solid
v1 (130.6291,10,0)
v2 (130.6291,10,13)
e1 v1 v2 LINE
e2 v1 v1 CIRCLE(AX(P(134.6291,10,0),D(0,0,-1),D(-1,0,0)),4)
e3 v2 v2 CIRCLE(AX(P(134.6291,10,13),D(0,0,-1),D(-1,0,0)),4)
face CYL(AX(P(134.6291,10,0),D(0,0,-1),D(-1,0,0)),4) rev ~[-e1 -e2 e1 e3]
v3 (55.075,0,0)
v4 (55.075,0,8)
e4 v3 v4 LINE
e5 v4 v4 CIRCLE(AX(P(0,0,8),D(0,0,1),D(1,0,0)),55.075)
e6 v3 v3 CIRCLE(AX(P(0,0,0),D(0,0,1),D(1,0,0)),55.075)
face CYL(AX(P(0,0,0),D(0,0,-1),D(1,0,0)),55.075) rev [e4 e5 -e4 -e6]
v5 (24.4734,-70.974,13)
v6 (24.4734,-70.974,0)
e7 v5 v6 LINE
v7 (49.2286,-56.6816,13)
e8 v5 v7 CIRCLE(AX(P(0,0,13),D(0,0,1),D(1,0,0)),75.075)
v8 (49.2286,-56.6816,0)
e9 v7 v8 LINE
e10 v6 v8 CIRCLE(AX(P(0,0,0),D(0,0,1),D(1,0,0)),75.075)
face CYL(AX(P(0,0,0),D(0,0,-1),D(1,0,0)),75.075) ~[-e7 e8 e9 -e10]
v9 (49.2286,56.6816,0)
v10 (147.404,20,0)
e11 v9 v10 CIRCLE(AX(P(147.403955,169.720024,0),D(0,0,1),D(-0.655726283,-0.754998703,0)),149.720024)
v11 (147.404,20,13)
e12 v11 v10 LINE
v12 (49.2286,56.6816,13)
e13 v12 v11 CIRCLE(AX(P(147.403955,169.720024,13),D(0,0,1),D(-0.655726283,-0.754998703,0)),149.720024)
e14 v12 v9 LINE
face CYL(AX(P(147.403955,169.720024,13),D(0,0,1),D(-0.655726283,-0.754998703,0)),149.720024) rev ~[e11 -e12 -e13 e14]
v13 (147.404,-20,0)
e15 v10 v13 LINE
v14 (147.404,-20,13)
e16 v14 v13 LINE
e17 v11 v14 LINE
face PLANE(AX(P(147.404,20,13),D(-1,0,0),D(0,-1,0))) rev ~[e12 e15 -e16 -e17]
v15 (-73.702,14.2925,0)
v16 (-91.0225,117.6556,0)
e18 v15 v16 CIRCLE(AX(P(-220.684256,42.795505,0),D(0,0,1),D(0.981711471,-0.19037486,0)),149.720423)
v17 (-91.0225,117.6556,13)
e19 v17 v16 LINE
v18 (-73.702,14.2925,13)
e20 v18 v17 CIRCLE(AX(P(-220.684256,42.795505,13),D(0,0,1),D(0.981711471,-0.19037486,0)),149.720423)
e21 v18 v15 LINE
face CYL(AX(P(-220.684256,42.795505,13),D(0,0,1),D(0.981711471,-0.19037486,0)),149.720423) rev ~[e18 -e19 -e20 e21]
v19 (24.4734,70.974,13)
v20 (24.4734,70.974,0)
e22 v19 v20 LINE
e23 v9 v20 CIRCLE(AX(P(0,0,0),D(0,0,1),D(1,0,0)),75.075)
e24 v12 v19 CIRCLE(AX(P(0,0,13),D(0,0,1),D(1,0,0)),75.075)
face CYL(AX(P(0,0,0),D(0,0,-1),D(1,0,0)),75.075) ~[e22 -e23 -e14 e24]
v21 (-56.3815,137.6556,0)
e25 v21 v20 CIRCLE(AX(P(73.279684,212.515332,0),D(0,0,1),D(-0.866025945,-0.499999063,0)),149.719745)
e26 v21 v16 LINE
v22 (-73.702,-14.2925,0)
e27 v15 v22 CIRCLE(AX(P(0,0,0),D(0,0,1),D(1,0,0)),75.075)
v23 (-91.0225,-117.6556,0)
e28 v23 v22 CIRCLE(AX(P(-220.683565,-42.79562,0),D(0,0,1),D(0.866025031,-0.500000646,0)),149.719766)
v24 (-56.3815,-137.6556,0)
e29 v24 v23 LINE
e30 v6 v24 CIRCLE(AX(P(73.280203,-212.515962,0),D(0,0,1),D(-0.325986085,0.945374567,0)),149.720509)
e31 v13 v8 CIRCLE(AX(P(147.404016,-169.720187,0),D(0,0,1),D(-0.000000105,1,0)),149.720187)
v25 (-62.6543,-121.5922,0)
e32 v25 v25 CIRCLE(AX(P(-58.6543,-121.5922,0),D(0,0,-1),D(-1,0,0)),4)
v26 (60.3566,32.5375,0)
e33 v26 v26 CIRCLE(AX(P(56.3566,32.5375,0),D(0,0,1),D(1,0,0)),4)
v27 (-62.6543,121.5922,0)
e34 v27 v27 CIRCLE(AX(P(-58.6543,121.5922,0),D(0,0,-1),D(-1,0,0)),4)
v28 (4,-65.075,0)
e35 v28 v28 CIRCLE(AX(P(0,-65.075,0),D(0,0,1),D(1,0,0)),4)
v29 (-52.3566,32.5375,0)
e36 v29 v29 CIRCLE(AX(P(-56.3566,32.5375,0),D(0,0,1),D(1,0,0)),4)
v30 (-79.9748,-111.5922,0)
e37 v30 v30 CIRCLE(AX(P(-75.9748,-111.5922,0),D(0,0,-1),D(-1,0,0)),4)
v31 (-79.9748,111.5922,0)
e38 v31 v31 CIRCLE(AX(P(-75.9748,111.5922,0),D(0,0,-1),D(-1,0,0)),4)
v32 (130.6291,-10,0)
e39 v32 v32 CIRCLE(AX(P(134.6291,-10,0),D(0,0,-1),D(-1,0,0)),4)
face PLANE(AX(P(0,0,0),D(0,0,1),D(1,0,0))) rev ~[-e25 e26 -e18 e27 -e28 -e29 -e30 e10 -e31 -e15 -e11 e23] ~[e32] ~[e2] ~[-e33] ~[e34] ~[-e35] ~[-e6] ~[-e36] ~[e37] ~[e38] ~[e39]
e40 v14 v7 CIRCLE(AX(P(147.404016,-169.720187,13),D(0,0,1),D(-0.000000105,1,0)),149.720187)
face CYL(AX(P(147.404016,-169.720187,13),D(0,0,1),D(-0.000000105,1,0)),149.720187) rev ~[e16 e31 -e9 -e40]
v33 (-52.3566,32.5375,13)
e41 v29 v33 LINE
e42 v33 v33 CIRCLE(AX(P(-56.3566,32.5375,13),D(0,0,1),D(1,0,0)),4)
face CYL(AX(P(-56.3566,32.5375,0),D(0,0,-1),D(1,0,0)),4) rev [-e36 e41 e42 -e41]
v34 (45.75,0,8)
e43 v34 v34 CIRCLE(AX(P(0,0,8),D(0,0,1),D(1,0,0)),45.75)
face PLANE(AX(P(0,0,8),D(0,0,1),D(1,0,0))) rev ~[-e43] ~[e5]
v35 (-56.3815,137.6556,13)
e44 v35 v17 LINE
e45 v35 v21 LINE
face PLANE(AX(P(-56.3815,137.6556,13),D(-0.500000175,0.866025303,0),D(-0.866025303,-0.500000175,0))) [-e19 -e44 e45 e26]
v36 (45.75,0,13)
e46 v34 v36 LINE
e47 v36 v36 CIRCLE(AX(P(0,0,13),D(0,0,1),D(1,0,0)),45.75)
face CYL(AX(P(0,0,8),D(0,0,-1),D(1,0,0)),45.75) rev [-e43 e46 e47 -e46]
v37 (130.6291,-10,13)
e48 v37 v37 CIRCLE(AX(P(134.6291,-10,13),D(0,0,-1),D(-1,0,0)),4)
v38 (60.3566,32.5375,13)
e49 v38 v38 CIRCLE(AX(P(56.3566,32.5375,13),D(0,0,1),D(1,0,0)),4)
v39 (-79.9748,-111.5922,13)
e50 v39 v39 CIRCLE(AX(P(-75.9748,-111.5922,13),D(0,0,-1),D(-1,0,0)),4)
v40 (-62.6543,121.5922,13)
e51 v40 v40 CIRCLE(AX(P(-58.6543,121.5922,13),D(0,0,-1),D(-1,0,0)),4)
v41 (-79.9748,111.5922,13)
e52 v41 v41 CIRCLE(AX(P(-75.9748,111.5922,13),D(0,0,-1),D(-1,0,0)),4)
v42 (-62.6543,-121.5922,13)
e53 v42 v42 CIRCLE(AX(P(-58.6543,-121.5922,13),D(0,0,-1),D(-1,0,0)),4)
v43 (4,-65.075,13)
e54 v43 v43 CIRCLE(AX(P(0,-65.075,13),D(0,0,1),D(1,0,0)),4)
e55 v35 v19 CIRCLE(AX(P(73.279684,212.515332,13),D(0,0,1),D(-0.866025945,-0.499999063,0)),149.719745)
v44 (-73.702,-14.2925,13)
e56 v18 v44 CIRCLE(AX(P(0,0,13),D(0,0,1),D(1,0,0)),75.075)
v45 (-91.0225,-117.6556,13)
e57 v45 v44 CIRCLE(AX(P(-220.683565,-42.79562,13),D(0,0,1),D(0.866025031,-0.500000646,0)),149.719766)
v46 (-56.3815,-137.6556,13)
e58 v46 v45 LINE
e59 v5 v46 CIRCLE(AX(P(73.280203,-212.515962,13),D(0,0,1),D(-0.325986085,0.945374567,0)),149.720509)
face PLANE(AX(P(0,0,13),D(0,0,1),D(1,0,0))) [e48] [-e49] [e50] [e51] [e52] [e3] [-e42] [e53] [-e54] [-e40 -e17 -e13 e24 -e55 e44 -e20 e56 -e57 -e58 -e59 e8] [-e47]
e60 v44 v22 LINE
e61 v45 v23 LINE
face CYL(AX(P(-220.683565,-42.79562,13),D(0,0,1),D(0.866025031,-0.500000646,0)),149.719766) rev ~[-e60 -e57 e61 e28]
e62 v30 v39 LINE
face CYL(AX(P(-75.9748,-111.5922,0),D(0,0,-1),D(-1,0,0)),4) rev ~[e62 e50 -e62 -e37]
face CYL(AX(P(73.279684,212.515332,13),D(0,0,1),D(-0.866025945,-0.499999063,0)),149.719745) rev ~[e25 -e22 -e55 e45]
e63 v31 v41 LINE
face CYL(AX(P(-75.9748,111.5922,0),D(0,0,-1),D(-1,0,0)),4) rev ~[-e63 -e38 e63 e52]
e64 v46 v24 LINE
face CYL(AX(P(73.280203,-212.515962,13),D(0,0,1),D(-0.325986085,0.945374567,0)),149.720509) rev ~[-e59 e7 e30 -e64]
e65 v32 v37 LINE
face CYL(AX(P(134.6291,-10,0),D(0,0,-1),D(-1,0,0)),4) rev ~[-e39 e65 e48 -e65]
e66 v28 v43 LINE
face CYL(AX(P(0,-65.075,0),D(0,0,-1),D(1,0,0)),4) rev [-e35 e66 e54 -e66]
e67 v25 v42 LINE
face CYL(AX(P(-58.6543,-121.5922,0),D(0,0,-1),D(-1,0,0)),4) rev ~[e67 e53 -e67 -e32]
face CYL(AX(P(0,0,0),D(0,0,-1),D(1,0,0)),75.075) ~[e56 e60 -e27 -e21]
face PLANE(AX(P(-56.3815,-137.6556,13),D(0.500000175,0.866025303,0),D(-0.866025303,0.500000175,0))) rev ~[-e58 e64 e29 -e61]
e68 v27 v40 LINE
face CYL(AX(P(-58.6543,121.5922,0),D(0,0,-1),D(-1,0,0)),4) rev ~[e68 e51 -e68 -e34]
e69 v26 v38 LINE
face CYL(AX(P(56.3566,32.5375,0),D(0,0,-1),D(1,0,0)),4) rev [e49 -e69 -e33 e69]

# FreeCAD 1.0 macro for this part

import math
import FreeCAD as App
import Part
import Sketcher
Q = App.Units.Quantity

doc = App.newDocument("Part")
body = doc.addObject("PartDesign::Body", "Body")

sketch1 = body.newObject("Sketcher::SketchObject", "Sketch")
sketch1.AttachmentSupport = (doc.getObject("XY_Plane"), [""])
sketch1.MapMode = "FlatFace"
sketch1.addGeometry([
    Part.Circle(App.Vector(0, 0, 0), App.Vector(0, 0, 1), 75.1),
    Part.Circle(App.Vector(0, -65.1, 0), App.Vector(0, 0, 1), 4),
    Part.Circle(App.Vector(-56.4, 32.5, 0), App.Vector(0, 0, 1), 4),
    Part.Circle(App.Vector(0, 0, 0), App.Vector(0, 0, 1), 55.1),
    Part.Circle(App.Vector(56.4, 32.5, 0), App.Vector(0, 0, 1), 4),
], False)
sketch1.addConstraint([
    Sketcher.Constraint("Coincident", 0, 3, -1, 1),
    Sketcher.Constraint("Coincident", 3, 3, -1, 1),
    Sketcher.Constraint("Equal", 1, 2),
    Sketcher.Constraint("Equal", 2, 4),
    Sketcher.Constraint("Symmetric", 2, 3, 4, 3, -2),
    Sketcher.Constraint("PointOnObject", 1, 3, -2),
    Sketcher.Constraint("Diameter", 1, Q("8 mm")),
    Sketcher.Constraint("Diameter", 3, Q("110.15 mm")),
    Sketcher.Constraint("Diameter", 0, Q("150.15 mm")),
    Sketcher.Constraint("DistanceY", 1, 3, -1, 1, Q("65.075 mm")),
    Sketcher.Constraint("DistanceX", 2, 3, -1, 1, Q("56.3566 mm")),
    Sketcher.Constraint("DistanceY", -1, 1, 2, 3, Q("32.5375 mm")),
])
pad1 = body.newObject("PartDesign::Pad", "Pad")
pad1.Profile = sketch1
pad1.Length = 8

sketch2 = body.newObject("Sketcher::SketchObject", "Sketch001")
sketch2.AttachmentSupport = (doc.getObject("XY_Plane"), [""])
sketch2.MapMode = "FlatFace"
sketch2.AttachmentOffset = App.Placement(App.Vector(0, 0, 8), App.Rotation())
sketch2.addGeometry([
    Part.Circle(App.Vector(0, 0, 0), App.Vector(0, 0, 1), 75.1),
    Part.Circle(App.Vector(0, 0, 0), App.Vector(0, 0, 1), 45.8),
    Part.Circle(App.Vector(0, -65.1, 0), App.Vector(0, 0, 1), 4),
    Part.Circle(App.Vector(-56.4, 32.5, 0), App.Vector(0, 0, 1), 4),
    Part.Circle(App.Vector(56.4, 32.5, 0), App.Vector(0, 0, 1), 4),
], False)
sketch2.addConstraint([
    Sketcher.Constraint("Coincident", 0, 3, -1, 1),
    Sketcher.Constraint("Coincident", 1, 3, -1, 1),
    Sketcher.Constraint("Equal", 2, 3),
    Sketcher.Constraint("Equal", 3, 4),
    Sketcher.Constraint("Symmetric", 3, 3, 4, 3, -2),
    Sketcher.Constraint("PointOnObject", 2, 3, -2),
    Sketcher.Constraint("Diameter", 1, Q("91.5 mm")),
    Sketcher.Constraint("Diameter", 2, Q("8 mm")),
    Sketcher.Constraint("Diameter", 0, Q("150.15 mm")),
    Sketcher.Constraint("DistanceY", 2, 3, -1, 1, Q("65.075 mm")),
    Sketcher.Constraint("DistanceX", 3, 3, -1, 1, Q("56.3566 mm")),
    Sketcher.Constraint("DistanceY", -1, 1, 3, 3, Q("32.5375 mm")),
])
pad2 = body.newObject("PartDesign::Pad", "Pad001")
pad2.Profile = sketch2
pad2.Length = 5

sketch3 = body.newObject("Sketcher::SketchObject", "Sketch002")
sketch3.AttachmentSupport = (doc.getObject("XY_Plane"), [""])
sketch3.MapMode = "FlatFace"
sketch3.AttachmentOffset = App.Placement(App.Vector(0, 0, 13), App.Rotation())
sketch3.addGeometry([
    Part.ArcOfCircle(Part.Circle(App.Vector(147, -170, 0), App.Vector(0, 0, 1), 150), math.radians(90), math.radians(131)),
    Part.LineSegment(App.Vector(147, -20, 0), App.Vector(147, 20, 0)),
    Part.ArcOfCircle(Part.Circle(App.Vector(147, 170, 0), App.Vector(0, 0, 1), 150), math.radians(-131), math.radians(-90)),
    Part.ArcOfCircle(Part.Circle(App.Vector(0, 0, 0), App.Vector(0, 0, 1), 75), math.radians(-49), math.radians(49)),
    Part.ArcOfCircle(Part.Circle(App.Vector(73, 213, 0), App.Vector(0, 0, 1), 150), math.radians(-150), math.radians(-109)),
    Part.LineSegment(App.Vector(-56, 138, 0), App.Vector(-91, 118, 0)),
    Part.ArcOfCircle(Part.Circle(App.Vector(-221, 43, 0), App.Vector(0, 0, 1), 150), math.radians(-11), math.radians(30)),
    Part.ArcOfCircle(Part.Circle(App.Vector(0, 0, 0), App.Vector(0, 0, 1), 75), math.radians(71), math.radians(169)),
    Part.ArcOfCircle(Part.Circle(App.Vector(73, -213, 0), App.Vector(0, 0, 1), 150), math.radians(109), math.radians(150)),
    Part.ArcOfCircle(Part.Circle(App.Vector(0, 0, 0), App.Vector(0, 0, 1), 75), math.radians(-169), math.radians(-71)),
    Part.ArcOfCircle(Part.Circle(App.Vector(-221, -43, 0), App.Vector(0, 0, 1), 150), math.radians(-30), math.radians(11)),
    Part.LineSegment(App.Vector(-91, -118, 0), App.Vector(-56, -138, 0)),
], False)
sketch3.addConstraint([
    Sketcher.Constraint("Coincident", 0, 1, 1, 1),
    Sketcher.Constraint("Coincident", 1, 2, 2, 2),
    Sketcher.Constraint("Tangent", 2, 1, 3, 2),
    Sketcher.Constraint("Tangent", 3, 1, 0, 2),
    Sketcher.Constraint("Coincident", 4, 1, 5, 1),
    Sketcher.Constraint("Coincident", 5, 2, 6, 2),
    Sketcher.Constraint("Tangent", 6, 1, 7, 2),
    Sketcher.Constraint("Tangent", 7, 1, 4, 2),
    Sketcher.Constraint("Tangent", 8, 1, 9, 2),
    Sketcher.Constraint("Tangent", 9, 1, 10, 2),
    Sketcher.Constraint("Coincident", 10, 1, 11, 1),
    Sketcher.Constraint("Coincident", 11, 2, 8, 2),
    Sketcher.Constraint("Vertical", 1),
    Sketcher.Constraint("Coincident", 3, 3, -1, 1),
    Sketcher.Constraint("Coincident", 7, 3, -1, 1),
    Sketcher.Constraint("Coincident", 9, 3, -1, 1),
    Sketcher.Constraint("Equal", 0, 2),
    Sketcher.Constraint("Equal", 2, 4),
    Sketcher.Constraint("Equal", 4, 6),
    Sketcher.Constraint("Equal", 3, 7),
    Sketcher.Constraint("Equal", 6, 8),
    Sketcher.Constraint("Equal", 7, 9),
    Sketcher.Constraint("Equal", 8, 10),
    Sketcher.Constraint("Symmetric", 5, 2, 10, 1, -1),
    Sketcher.Constraint("Symmetric", 4, 1, 11, 2, -1),
    Sketcher.Constraint("Vertical", 0, 3, 2, 3),
    Sketcher.Constraint("Vertical", 2, 3, 0, 1),
    Sketcher.Constraint("DistanceY", 1, 1, 1, 2, Q("40 mm")),
    Sketcher.Constraint("Distance", 5, Q("40 mm")),
    Sketcher.Constraint("Angle", 5, Q("-150 deg")),
    Sketcher.Constraint("Radius", 0, Q("149.72 mm")),
    Sketcher.Constraint("Radius", 3, Q("75.075 mm")),
    Sketcher.Constraint("DistanceX", -1, 1, 4, 3, Q("73.28 mm")),
    Sketcher.Constraint("DistanceY", 4, 1, 4, 3, Q("74.86 mm")),
])
pad3 = body.newObject("PartDesign::Pad", "Pad002")
pad3.Profile = sketch3
pad3.Length = 13
pad3.Reversed = True

sketch4 = body.newObject("Sketcher::SketchObject", "Sketch003")
sketch4.AttachmentSupport = (doc.getObject("XY_Plane"), [""])
sketch4.MapMode = "FlatFace"
sketch4.addGeometry([
    Part.Circle(App.Vector(-76, 111.6, 0), App.Vector(0, 0, 1), 4),
    Part.Circle(App.Vector(-58.7, 121.6, 0), App.Vector(0, 0, 1), 4),
    Part.Circle(App.Vector(134.6, -10, 0), App.Vector(0, 0, 1), 4),
    Part.Circle(App.Vector(134.6, 10, 0), App.Vector(0, 0, 1), 4),
    Part.Circle(App.Vector(-76, -111.6, 0), App.Vector(0, 0, 1), 4),
    Part.Circle(App.Vector(-58.7, -121.6, 0), App.Vector(0, 0, 1), 4),
], False)
sketch4.addConstraint([
    Sketcher.Constraint("Equal", 0, 1),
    Sketcher.Constraint("Equal", 1, 2),
    Sketcher.Constraint("Equal", 2, 3),
    Sketcher.Constraint("Equal", 3, 4),
    Sketcher.Constraint("Equal", 4, 5),
    Sketcher.Constraint("Symmetric", 2, 3, 3, 3, -1),
    Sketcher.Constraint("Symmetric", 0, 3, 4, 3, -1),
    Sketcher.Constraint("Symmetric", 1, 3, 5, 3, -1),
    Sketcher.Constraint("Diameter", 0, Q("8 mm")),
    Sketcher.Constraint("DistanceY", 2, 3, 3, 3, Q("20 mm")),
    Sketcher.Constraint("DistanceY", 0, 3, 1, 3, Q("10 mm")),
    Sketcher.Constraint("DistanceX", -1, 1, 2, 3, Q("134.629 mm")),
    Sketcher.Constraint("DistanceX", 0, 3, 2, 3, Q("210.604 mm")),
    Sketcher.Constraint("DistanceY", -1, 1, 0, 3, Q("111.5922 mm")),
    Sketcher.Constraint("DistanceX", 1, 3, -1, 1, Q("58.6543 mm")),
])
pocket1 = body.newObject("PartDesign::Pocket", "Pocket")
pocket1.Profile = sketch4
pocket1.Length = 20
pocket1.Reversed = True

doc.recompute()
